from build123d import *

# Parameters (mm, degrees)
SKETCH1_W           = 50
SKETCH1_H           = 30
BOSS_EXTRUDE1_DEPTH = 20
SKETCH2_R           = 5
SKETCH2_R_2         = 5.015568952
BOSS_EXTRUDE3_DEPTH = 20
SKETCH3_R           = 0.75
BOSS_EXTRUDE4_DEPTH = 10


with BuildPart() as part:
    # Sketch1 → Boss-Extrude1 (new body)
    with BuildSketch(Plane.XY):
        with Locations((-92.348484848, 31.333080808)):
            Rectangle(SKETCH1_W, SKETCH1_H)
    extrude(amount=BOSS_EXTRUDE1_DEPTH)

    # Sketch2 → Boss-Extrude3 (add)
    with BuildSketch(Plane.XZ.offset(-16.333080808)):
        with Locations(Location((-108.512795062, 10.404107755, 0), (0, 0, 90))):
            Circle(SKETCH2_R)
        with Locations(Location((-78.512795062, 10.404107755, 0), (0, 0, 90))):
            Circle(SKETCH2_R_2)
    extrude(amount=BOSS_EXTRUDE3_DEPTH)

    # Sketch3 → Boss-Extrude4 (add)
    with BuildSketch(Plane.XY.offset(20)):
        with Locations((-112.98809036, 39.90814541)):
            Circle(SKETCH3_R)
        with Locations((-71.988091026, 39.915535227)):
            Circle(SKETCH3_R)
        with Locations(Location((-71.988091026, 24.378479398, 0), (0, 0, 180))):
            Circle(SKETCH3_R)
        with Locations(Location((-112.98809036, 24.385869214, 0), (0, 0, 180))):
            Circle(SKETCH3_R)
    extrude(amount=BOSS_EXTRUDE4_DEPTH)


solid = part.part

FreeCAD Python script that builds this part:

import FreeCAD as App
import Part
import Sketcher
from FreeCAD import Vector
Q = App.Units.Quantity

doc = App.newDocument("Part")
body = doc.addObject("PartDesign::Body", "Body")

# Sketch on XY plane
sketch1 = body.newObject("Sketcher::SketchObject", "Sketch")
sketch1.AttachmentSupport = (doc.getObject("XY_Plane"), [""])
sketch1.MapMode = "FlatFace"
sketch1.addGeometry([
    Part.LineSegment(Vector(-117.348485, 46.333081, 0), Vector(-117.348485, 16.333081, 0)),
    Part.LineSegment(Vector(-117.348485, 16.333081, 0), Vector(-67.348485, 16.333081, 0)),
    Part.LineSegment(Vector(-67.348485, 16.333081, 0), Vector(-67.348485, 46.333081, 0)),
    Part.LineSegment(Vector(-67.348485, 46.333081, 0), Vector(-117.348485, 46.333081, 0)),
], False)
sketch1.addConstraint([
    Sketcher.Constraint("Coincident", 0, 2, 1, 1),
    Sketcher.Constraint("Coincident", 1, 2, 2, 1),
    Sketcher.Constraint("Coincident", 2, 2, 3, 1),
    Sketcher.Constraint("Coincident", 3, 2, 0, 1),
    Sketcher.Constraint("Vertical", 0),
    Sketcher.Constraint("Horizontal", 1),
    Sketcher.Constraint("Vertical", 2),
    Sketcher.Constraint("Horizontal", 3),
    Sketcher.Constraint("DistanceX", 1, 1, 1, 2, Q("50 mm")),
    Sketcher.Constraint("DistanceY", 0, 2, 0, 1, Q("30 mm")),
    Sketcher.Constraint("DistanceY", -1, 1, 0, 2, Q("16.333081 mm")),
    Sketcher.Constraint("DistanceX", 0, 2, -1, 1, Q("117.348485 mm")),
])
pad1 = body.newObject("PartDesign::Pad", "Pad")
pad1.Profile = sketch1
pad1.Length = 20

# Sketch on XZ plane
sketch2 = body.newObject("Sketcher::SketchObject", "Sketch001")
sketch2.AttachmentSupport = (doc.getObject("XZ_Plane"), [""])
sketch2.MapMode = "FlatFace"
sketch2.AttachmentOffset = App.Placement(Vector(0, 0, -16.333081), App.Rotation())
sketch2.addGeometry([
    Part.Circle(Vector(-108.512795, 10.404108, 0), Vector(0, 0, 1), 5),
    Part.Circle(Vector(-78.512795, 10.404108, 0), Vector(0, 0, 1), 5.015569),
], False)
sketch2.addConstraint([
    Sketcher.Constraint("Horizontal", 0, 3, 1, 3),
    Sketcher.Constraint("Diameter", 0, Q("10 mm")),
    Sketcher.Constraint("DistanceX", 0, 3, 1, 3, Q("30 mm")),
    Sketcher.Constraint("Diameter", 1, Q("10.031138 mm")),
    Sketcher.Constraint("DistanceX", 0, 3, -1, 1, Q("108.512795 mm")),
    Sketcher.Constraint("DistanceY", -1, 1, 0, 3, Q("10.404108 mm")),
])
pad2 = body.newObject("PartDesign::Pad", "Pad001")
pad2.Profile = sketch2
pad2.Length = 20

# Sketch on XY plane
sketch3 = body.newObject("Sketcher::SketchObject", "Sketch002")
sketch3.AttachmentSupport = (doc.getObject("XY_Plane"), [""])
sketch3.MapMode = "FlatFace"
sketch3.AttachmentOffset = App.Placement(Vector(0, 0, 20), App.Rotation())
sketch3.addGeometry([
    Part.Circle(Vector(-112.98809, 39.908145, 0), Vector(0, 0, 1), 0.75),
    Part.Circle(Vector(-71.988091, 39.915535, 0), Vector(0, 0, 1), 0.75),
    Part.Circle(Vector(-71.988091, 24.378479, 0), Vector(0, 0, 1), 0.75),
    Part.Circle(Vector(-112.98809, 24.385869, 0), Vector(0, 0, 1), 0.75),
], False)
sketch3.addConstraint([
    Sketcher.Constraint("Equal", 0, 1),
    Sketcher.Constraint("Equal", 1, 2),
    Sketcher.Constraint("Equal", 2, 3),
    Sketcher.Constraint("Vertical", 1, 3, 2, 3),
    Sketcher.Constraint("Vertical", 0, 3, 3, 3),
    Sketcher.Constraint("Diameter", 0, Q("1.5 mm")),
    Sketcher.Constraint("DistanceX", 0, 3, 1, 3, Q("40.999999 mm")),
    Sketcher.Constraint("DistanceX", 0, 3, -1, 1, Q("112.98809 mm")),
    Sketcher.Constraint("DistanceY", -1, 1, 2, 3, Q("24.378479 mm")),
    Sketcher.Constraint("DistanceY", -1, 1, 3, 3, Q("24.385869 mm")),
    Sketcher.Constraint("DistanceY", 0, 3, 1, 3, Q("0.00739 mm")),
    Sketcher.Constraint("DistanceY", -1, 1, 0, 3, Q("39.908145 mm")),
])
pad3 = body.newObject("PartDesign::Pad", "Pad002")
pad3.Profile = sketch3
pad3.Length = 10

doc.recompute()
